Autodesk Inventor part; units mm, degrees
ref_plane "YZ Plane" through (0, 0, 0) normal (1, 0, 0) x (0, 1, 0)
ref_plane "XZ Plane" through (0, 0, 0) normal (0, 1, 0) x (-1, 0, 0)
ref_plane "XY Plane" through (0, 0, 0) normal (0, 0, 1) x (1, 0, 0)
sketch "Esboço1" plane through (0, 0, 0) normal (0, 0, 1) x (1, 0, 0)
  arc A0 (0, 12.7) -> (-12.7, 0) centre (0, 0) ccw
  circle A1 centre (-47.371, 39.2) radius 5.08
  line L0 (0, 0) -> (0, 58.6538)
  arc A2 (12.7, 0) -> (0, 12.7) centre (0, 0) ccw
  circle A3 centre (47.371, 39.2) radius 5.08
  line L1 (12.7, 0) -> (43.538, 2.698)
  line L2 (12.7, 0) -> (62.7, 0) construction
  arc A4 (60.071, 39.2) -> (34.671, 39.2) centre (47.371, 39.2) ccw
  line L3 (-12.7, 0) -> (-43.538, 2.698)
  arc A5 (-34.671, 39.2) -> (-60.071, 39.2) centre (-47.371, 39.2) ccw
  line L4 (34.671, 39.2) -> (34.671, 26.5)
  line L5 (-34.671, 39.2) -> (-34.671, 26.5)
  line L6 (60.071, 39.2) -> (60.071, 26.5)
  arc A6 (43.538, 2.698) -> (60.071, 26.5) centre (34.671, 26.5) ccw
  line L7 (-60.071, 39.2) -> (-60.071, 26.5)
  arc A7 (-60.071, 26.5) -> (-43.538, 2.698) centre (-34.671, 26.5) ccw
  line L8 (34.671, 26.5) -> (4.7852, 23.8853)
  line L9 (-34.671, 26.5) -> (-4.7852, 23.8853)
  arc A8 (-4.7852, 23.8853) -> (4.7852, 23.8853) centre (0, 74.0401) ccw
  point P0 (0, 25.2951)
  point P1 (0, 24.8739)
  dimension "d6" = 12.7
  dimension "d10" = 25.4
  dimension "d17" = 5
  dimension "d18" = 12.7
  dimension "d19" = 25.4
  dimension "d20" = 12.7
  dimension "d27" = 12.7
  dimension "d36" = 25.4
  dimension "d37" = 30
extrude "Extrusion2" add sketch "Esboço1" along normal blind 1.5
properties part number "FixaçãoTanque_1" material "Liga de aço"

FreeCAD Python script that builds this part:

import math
import FreeCAD as App
import Part
import Sketcher
from FreeCAD import Vector
Q = App.Units.Quantity

doc = App.newDocument("Part")
body = doc.addObject("PartDesign::Body", "Body")

# Sketch on XY plane
sketch1 = body.newObject("Sketcher::SketchObject", "Sketch")
sketch1.AttachmentSupport = (doc.getObject("XY_Plane"), [""])
sketch1.MapMode = "FlatFace"
sketch1.addGeometry(Part.ArcOfCircle(Part.Circle(Vector(0, 0, 0), Vector(0, 0, 1), 13), math.radians(0), math.radians(180)), False)
sketch1.addGeometry(Part.LineSegment(Vector(13, 0, 0), Vector(44, 3, 0)), False)
sketch1.addGeometry(Part.ArcOfCircle(Part.Circle(Vector(35, 26, 0), Vector(0, 0, 1), 25), math.radians(-70), math.radians(0)), False)
sketch1.addGeometry(Part.LineSegment(Vector(60, 26, 0), Vector(60, 39, 0)), False)
sketch1.addGeometry(Part.ArcOfCircle(Part.Circle(Vector(47, 39, 0), Vector(0, 0, 1), 13), math.radians(0), math.radians(180)), False)
sketch1.addGeometry(Part.LineSegment(Vector(35, 39, 0), Vector(35, 26, 0)), False)
sketch1.addGeometry(Part.LineSegment(Vector(35, 26, 0), Vector(5, 24, 0)), False)
sketch1.addGeometry(Part.ArcOfCircle(Part.Circle(Vector(0, 74, 0), Vector(0, 0, 1), 50), math.radians(-95.45), math.radians(-84.55)), False)
sketch1.addGeometry(Part.LineSegment(Vector(-5, 24, 0), Vector(-35, 26, 0)), False)
sketch1.addGeometry(Part.LineSegment(Vector(-35, 26, 0), Vector(-35, 39, 0)), False)
sketch1.addGeometry(Part.ArcOfCircle(Part.Circle(Vector(-47, 39, 0), Vector(0, 0, 1), 13), math.radians(0), math.radians(180)), False)
sketch1.addGeometry(Part.LineSegment(Vector(-60, 39, 0), Vector(-60, 26, 0)), False)
sketch1.addGeometry(Part.ArcOfCircle(Part.Circle(Vector(-35, 26, 0), Vector(0, 0, 1), 25), math.radians(180), math.radians(250)), False)
sketch1.addGeometry(Part.LineSegment(Vector(-44, 3, 0), Vector(-13, 0, 0)), False)
sketch1.addGeometry(Part.Circle(Vector(-47, 39, 0), Vector(0, 0, 1), 5), False)
sketch1.addGeometry(Part.Circle(Vector(47, 39, 0), Vector(0, 0, 1), 5), False)
sketch1.addConstraint(Sketcher.Constraint("Coincident", 0, 1, 1, 1))
sketch1.addConstraint(Sketcher.Constraint("Coincident", 1, 2, 2, 1))
sketch1.addConstraint(Sketcher.Constraint("Tangent", 2, 2, 3, 1))
sketch1.addConstraint(Sketcher.Constraint("Tangent", 3, 2, 4, 1))
sketch1.addConstraint(Sketcher.Constraint("Tangent", 4, 2, 5, 1))
sketch1.addConstraint(Sketcher.Constraint("Coincident", 5, 2, 6, 1))
sketch1.addConstraint(Sketcher.Constraint("Coincident", 6, 2, 7, 2))
sketch1.addConstraint(Sketcher.Constraint("Coincident", 7, 1, 8, 1))
sketch1.addConstraint(Sketcher.Constraint("Coincident", 8, 2, 9, 1))
sketch1.addConstraint(Sketcher.Constraint("Tangent", 9, 2, 10, 1))
sketch1.addConstraint(Sketcher.Constraint("Tangent", 10, 2, 11, 1))
sketch1.addConstraint(Sketcher.Constraint("Tangent", 11, 2, 12, 1))
sketch1.addConstraint(Sketcher.Constraint("Coincident", 12, 2, 13, 1))
sketch1.addConstraint(Sketcher.Constraint("Coincident", 13, 2, 0, 2))
sketch1.addConstraint(Sketcher.Constraint("Vertical", 3))
sketch1.addConstraint(Sketcher.Constraint("Vertical", 5))
sketch1.addConstraint(Sketcher.Constraint("Vertical", 9))
sketch1.addConstraint(Sketcher.Constraint("Vertical", 11))
sketch1.addConstraint(Sketcher.Constraint("Coincident", 0, 3, -1, 1))
sketch1.addConstraint(Sketcher.Constraint("Coincident", 14, 3, 10, 3))
sketch1.addConstraint(Sketcher.Constraint("Coincident", 15, 3, 4, 3))
sketch1.addConstraint(Sketcher.Constraint("Coincident", 5, 2, 2, 3))
sketch1.addConstraint(Sketcher.Constraint("Coincident", 8, 2, 12, 3))
sketch1.addConstraint(Sketcher.Constraint("Equal", 0, 4))
sketch1.addConstraint(Sketcher.Constraint("Equal", 4, 10))
sketch1.addConstraint(Sketcher.Constraint("Equal", 14, 15))
sketch1.addConstraint(Sketcher.Constraint("Symmetric", 4, 3, 10, 3, -2))
sketch1.addConstraint(Sketcher.Constraint("Symmetric", 6, 2, 7, 1, -2))
sketch1.addConstraint(Sketcher.Constraint("Symmetric", 1, 2, 12, 2, -2))
sketch1.addConstraint(Sketcher.Constraint("PointOnObject", 0, 1, -1))
sketch1.addConstraint(Sketcher.Constraint("PointOnObject", 13, 2, -1))
sketch1.addConstraint(Sketcher.Constraint("Parallel", 1, 6))
sketch1.addConstraint(Sketcher.Constraint("Radius", 2, Q("1 in")))
sketch1.addConstraint(Sketcher.Constraint("DistanceY", 3, 1, 3, 2, Q("0.5 in")))
sketch1.addConstraint(Sketcher.Constraint("Angle", 1, Q("5 deg")))
sketch1.addConstraint(Sketcher.Constraint("Diameter", 14, Q("0.4 in")))
sketch1.addConstraint(Sketcher.Constraint("Distance", 6, Q("1.1811 in")))
sketch1.addConstraint(Sketcher.Constraint("Radius", 7, 50.3826))
sketch1.addConstraint(Sketcher.Constraint("DistanceX", 10, 3, 2, 3, Q("3.23 in")))
sketch1.addConstraint(Sketcher.Constraint("DistanceY", -1, 1, 2, 3, Q("1.0433 in")))
pad1 = body.newObject("PartDesign::Pad", "Pad")
pad1.Profile = sketch1
pad1.Length = 1.5

doc.recompute()
